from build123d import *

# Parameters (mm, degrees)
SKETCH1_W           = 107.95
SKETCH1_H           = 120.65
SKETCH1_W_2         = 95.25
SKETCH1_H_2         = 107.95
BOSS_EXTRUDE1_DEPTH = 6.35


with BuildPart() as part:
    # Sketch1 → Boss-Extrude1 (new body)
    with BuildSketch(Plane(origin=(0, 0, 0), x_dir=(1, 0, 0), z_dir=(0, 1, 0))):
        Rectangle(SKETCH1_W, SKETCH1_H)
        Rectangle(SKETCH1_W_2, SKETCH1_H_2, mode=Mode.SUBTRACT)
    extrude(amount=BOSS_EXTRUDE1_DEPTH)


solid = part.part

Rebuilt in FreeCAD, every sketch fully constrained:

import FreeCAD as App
import Part
import Sketcher

V = App.Vector
Q = App.Units.Quantity


def add_polygon(sketch, points):
    """Adds a closed chain of lines whose ends are joined by coincident constraints."""
    first, n = sketch.GeometryCount, len(points)
    for a, b in zip(points, points[1:] + points[:1]):
        sketch.addGeometry(Part.LineSegment(App.Vector(*a, 0), App.Vector(*b, 0)), False)
    for i in range(n):
        sketch.addConstraint(Sketcher.Constraint("Coincident", first + i, 2, first + (i + 1) % n, 1))

doc = App.newDocument("Part")
body = doc.addObject("PartDesign::Body", "Body")

# Sketch on XZ plane
sketch1 = body.newObject("Sketcher::SketchObject", "Sketch")
sketch1.AttachmentSupport = (doc.getObject("XZ_Plane"), [""])
sketch1.MapMode = "FlatFace"
add_polygon(sketch1, [(-53.975, -60.325), (-53.975, 60.325), (53.975, 60.325), (53.975, -60.325)])  # lines 0-3
add_polygon(sketch1, [(47.625, 53.975), (-47.625, 53.975), (-47.625, -53.975), (47.625, -53.975)])  # lines 4-7
sketch1.addConstraint(Sketcher.Constraint("Vertical", 0))
sketch1.addConstraint(Sketcher.Constraint("Horizontal", 1))
sketch1.addConstraint(Sketcher.Constraint("Vertical", 2))
sketch1.addConstraint(Sketcher.Constraint("Horizontal", 3))
sketch1.addConstraint(Sketcher.Constraint("Horizontal", 4))
sketch1.addConstraint(Sketcher.Constraint("Vertical", 5))
sketch1.addConstraint(Sketcher.Constraint("Horizontal", 6))
sketch1.addConstraint(Sketcher.Constraint("Vertical", 7))
sketch1.addConstraint(Sketcher.Constraint("Symmetric", 0, 2, 2, 2, -1, 1))
sketch1.addConstraint(Sketcher.Constraint("Symmetric", 4, 2, 6, 2, -1, 1))
sketch1.addConstraint(Sketcher.Constraint("Equal", 3, 5))
sketch1.addConstraint(Sketcher.Constraint("DistanceX", 4, 2, 1, 2, Q("4 in")))
sketch1.addConstraint(Sketcher.Constraint("DistanceX", 1, 1, 1, 2, Q("4.25 in")))
sketch1.addConstraint(Sketcher.Constraint("DistanceY", 0, 1, 0, 2, Q("4.75 in")))
pad1 = body.newObject("PartDesign::Pad", "Pad")
pad1.Profile = sketch1
pad1.Length = Q("0.25 in")
pad1.Reversed = True

doc.recompute()
